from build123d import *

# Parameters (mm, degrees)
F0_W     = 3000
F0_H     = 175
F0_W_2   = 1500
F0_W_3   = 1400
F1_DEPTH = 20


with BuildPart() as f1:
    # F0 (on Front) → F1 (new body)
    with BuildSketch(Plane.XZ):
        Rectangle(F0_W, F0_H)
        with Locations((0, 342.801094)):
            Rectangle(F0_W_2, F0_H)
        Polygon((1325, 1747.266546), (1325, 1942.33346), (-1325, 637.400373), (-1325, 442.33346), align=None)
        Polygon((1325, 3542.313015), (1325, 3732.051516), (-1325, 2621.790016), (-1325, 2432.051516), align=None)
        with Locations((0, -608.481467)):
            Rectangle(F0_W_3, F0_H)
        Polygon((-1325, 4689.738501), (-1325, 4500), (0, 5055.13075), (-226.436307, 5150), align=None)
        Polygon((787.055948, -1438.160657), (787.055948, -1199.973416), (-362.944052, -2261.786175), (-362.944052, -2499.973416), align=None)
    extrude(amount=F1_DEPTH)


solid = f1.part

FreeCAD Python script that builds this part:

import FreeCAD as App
import Part
import Sketcher

V = App.Vector

doc = App.newDocument("Part")
body = doc.addObject("PartDesign::Body", "Body")
body.AllowCompound = True

# Sketch on XZ plane
sketch1 = body.newObject("Sketcher::SketchObject", "Sketch")
sketch1.AttachmentSupport = (doc.getObject("XZ_Plane"), [""])
sketch1.MapMode = "FlatFace"
sketch1.addGeometry([
    Part.LineSegment(V(-1500, 88, 0), V(-1500, -88, 0)),  # 0
    Part.LineSegment(V(-1500, -88, 0), V(1500, -88, 0)),  # 1
    Part.LineSegment(V(1500, -88, 0), V(1500, 88, 0)),  # 2
    Part.LineSegment(V(1500, 88, 0), V(-1500, 88, 0)),  # 3
    Part.LineSegment(V(-750, 430, 0), V(-750, 255, 0)),  # 4
    Part.LineSegment(V(-750, 255, 0), V(750, 255, 0)),  # 5
    Part.LineSegment(V(750, 255, 0), V(750, 430, 0)),  # 6
    Part.LineSegment(V(750, 430, 0), V(-750, 430, 0)),  # 7
    Part.LineSegment(V(1325, 1747, 0), V(1325, 1942, 0)),  # 8
    Part.LineSegment(V(1325, 1942, 0), V(-1325, 637, 0)),  # 9
    Part.LineSegment(V(-1325, 637, 0), V(-1325, 442, 0)),  # 10
    Part.LineSegment(V(-1325, 442, 0), V(1325, 1747, 0)),  # 11
    Part.LineSegment(V(1325, 3542, 0), V(1325, 3732, 0)),  # 12
    Part.LineSegment(V(1325, 3732, 0), V(-1325, 2622, 0)),  # 13
    Part.LineSegment(V(-1325, 2622, 0), V(-1325, 2432, 0)),  # 14
    Part.LineSegment(V(-1325, 2432, 0), V(1325, 3542, 0)),  # 15
    Part.LineSegment(V(-700, -521, 0), V(-700, -696, 0)),  # 16
    Part.LineSegment(V(-700, -696, 0), V(700, -696, 0)),  # 17
    Part.LineSegment(V(700, -696, 0), V(700, -521, 0)),  # 18
    Part.LineSegment(V(700, -521, 0), V(-700, -521, 0)),  # 19
    Part.LineSegment(V(-1325, 4690, 0), V(-1325, 4500, 0)),  # 20
    Part.LineSegment(V(-1325, 4500, 0), V(0, 5055, 0)),  # 21
    Part.LineSegment(V(0, 5055, 0), V(-226, 5150, 0)),  # 22
    Part.LineSegment(V(-226, 5150, 0), V(-1325, 4690, 0)),  # 23
    Part.LineSegment(V(787, -1438, 0), V(787, -1200, 0)),  # 24
    Part.LineSegment(V(787, -1200, 0), V(-363, -2262, 0)),  # 25
    Part.LineSegment(V(-363, -2262, 0), V(-363, -2500, 0)),  # 26
    Part.LineSegment(V(-363, -2500, 0), V(787, -1438, 0)),  # 27
], False)
sketch1.addConstraint([
    Sketcher.Constraint("Coincident", 0, 2, 1, 1),
    Sketcher.Constraint("Coincident", 1, 2, 2, 1),
    Sketcher.Constraint("Coincident", 2, 2, 3, 1),
    Sketcher.Constraint("Coincident", 3, 2, 0, 1),
    Sketcher.Constraint("Coincident", 4, 2, 5, 1),
    Sketcher.Constraint("Coincident", 5, 2, 6, 1),
    Sketcher.Constraint("Coincident", 6, 2, 7, 1),
    Sketcher.Constraint("Coincident", 7, 2, 4, 1),
    Sketcher.Constraint("Coincident", 8, 2, 9, 1),
    Sketcher.Constraint("Coincident", 9, 2, 10, 1),
    Sketcher.Constraint("Coincident", 10, 2, 11, 1),
    Sketcher.Constraint("Coincident", 11, 2, 8, 1),
    Sketcher.Constraint("Coincident", 12, 2, 13, 1),
    Sketcher.Constraint("Coincident", 13, 2, 14, 1),
    Sketcher.Constraint("Coincident", 14, 2, 15, 1),
    Sketcher.Constraint("Coincident", 15, 2, 12, 1),
    Sketcher.Constraint("Coincident", 16, 2, 17, 1),
    Sketcher.Constraint("Coincident", 17, 2, 18, 1),
    Sketcher.Constraint("Coincident", 18, 2, 19, 1),
    Sketcher.Constraint("Coincident", 19, 2, 16, 1),
    Sketcher.Constraint("Coincident", 20, 2, 21, 1),
    Sketcher.Constraint("Coincident", 21, 2, 22, 1),
    Sketcher.Constraint("Coincident", 22, 2, 23, 1),
    Sketcher.Constraint("Coincident", 23, 2, 20, 1),
    Sketcher.Constraint("Coincident", 24, 2, 25, 1),
    Sketcher.Constraint("Coincident", 25, 2, 26, 1),
    Sketcher.Constraint("Coincident", 26, 2, 27, 1),
    Sketcher.Constraint("Coincident", 27, 2, 24, 1),
    Sketcher.Constraint("Vertical", 0),
    Sketcher.Constraint("Horizontal", 1),
    Sketcher.Constraint("Vertical", 2),
    Sketcher.Constraint("Horizontal", 3),
    Sketcher.Constraint("Vertical", 4),
    Sketcher.Constraint("Horizontal", 5),
    Sketcher.Constraint("Vertical", 6),
    Sketcher.Constraint("Horizontal", 7),
    Sketcher.Constraint("Vertical", 8),
    Sketcher.Constraint("Vertical", 10),
    Sketcher.Constraint("Vertical", 12),
    Sketcher.Constraint("Vertical", 14),
    Sketcher.Constraint("Vertical", 16),
    Sketcher.Constraint("Horizontal", 17),
    Sketcher.Constraint("Vertical", 18),
    Sketcher.Constraint("Horizontal", 19),
    Sketcher.Constraint("Vertical", 20),
    Sketcher.Constraint("Vertical", 24),
    Sketcher.Constraint("Vertical", 26),
    Sketcher.Constraint("Symmetric", 0, 2, 2, 2, -1, 1),
    Sketcher.Constraint("PointOnObject", 21, 2, -2),
    Sketcher.Constraint("Parallel", 9, 11),
    Sketcher.Constraint("Parallel", 13, 15),
    Sketcher.Constraint("Parallel", 15, 21),
    Sketcher.Constraint("Parallel", 21, 23),
    Sketcher.Constraint("Parallel", 25, 27),
    Sketcher.Constraint("Vertical", 11, 2, 12, 2),
    Sketcher.Constraint("Vertical", 10, 2, 13, 2),
    Sketcher.Constraint("Vertical", 14, 2, 20, 2),
    Sketcher.Constraint("Equal", 2, 4),
    Sketcher.Constraint("Equal", 6, 16),
    Sketcher.Constraint("Equal", 14, 20),
    Sketcher.Constraint("DistanceX", 1, 1, 1, 2, 3000.0),
    Sketcher.Constraint("DistanceX", 5, 1, 5, 2, 1500.0),
    Sketcher.Constraint("DistanceX", 17, 1, 17, 2, 1400.0),
    Sketcher.Constraint("DistanceY", 0, 2, 0, 1, 175.0),
    Sketcher.Constraint("DistanceX", 4, 2, -1, 1, 750.0),
    Sketcher.Constraint("DistanceX", -1, 1, 8, 2, 1325.0),
    Sketcher.Constraint("DistanceX", 9, 2, -1, 1, 1325.0),
    Sketcher.Constraint("DistanceX", 16, 2, -1, 1, 700.0),
    Sketcher.Constraint("DistanceY", -1, 1, 20, 2, 4500.0),
    Sketcher.Constraint("DistanceY", -1, 1, 22, 2, 5150.0),
    Sketcher.Constraint("DistanceX", 25, 2, 24, 2, 1150.0),
    Sketcher.Constraint("DistanceY", 26, 2, 24, 2, 1300.0),
    Sketcher.Constraint("DistanceY", 12, 1, 12, 2, 189.738501),
    Sketcher.Constraint("DistanceY", 13, 2, 15, 2, 920.522999),
    Sketcher.Constraint("DistanceY", 24, 1, 24, 2, 238.187241),
    Sketcher.Constraint("DistanceY", 8, 1, 8, 2, 195.066914),
    Sketcher.Constraint("DistanceY", -1, 1, 8, 2, 1942.33346),
    Sketcher.Constraint("DistanceY", -1, 1, 10, 2, 442.33346),
    Sketcher.Constraint("DistanceX", 25, 2, -1, 1, 362.944052),
    Sketcher.Constraint("DistanceY", 7, 2, 9, 2, 207.099279),
    Sketcher.Constraint("DistanceY", 11, 2, 12, 2, 1984.78497),
    Sketcher.Constraint("DistanceY", 16, 2, 4, 2, 951.282561),
    Sketcher.Constraint("DistanceY", 24, 2, 17, 2, 503.991949),
])
pad1 = body.newObject("PartDesign::Pad", "Pad")
pad1.Profile = sketch1
pad1.Length = 20

doc.recompute()
